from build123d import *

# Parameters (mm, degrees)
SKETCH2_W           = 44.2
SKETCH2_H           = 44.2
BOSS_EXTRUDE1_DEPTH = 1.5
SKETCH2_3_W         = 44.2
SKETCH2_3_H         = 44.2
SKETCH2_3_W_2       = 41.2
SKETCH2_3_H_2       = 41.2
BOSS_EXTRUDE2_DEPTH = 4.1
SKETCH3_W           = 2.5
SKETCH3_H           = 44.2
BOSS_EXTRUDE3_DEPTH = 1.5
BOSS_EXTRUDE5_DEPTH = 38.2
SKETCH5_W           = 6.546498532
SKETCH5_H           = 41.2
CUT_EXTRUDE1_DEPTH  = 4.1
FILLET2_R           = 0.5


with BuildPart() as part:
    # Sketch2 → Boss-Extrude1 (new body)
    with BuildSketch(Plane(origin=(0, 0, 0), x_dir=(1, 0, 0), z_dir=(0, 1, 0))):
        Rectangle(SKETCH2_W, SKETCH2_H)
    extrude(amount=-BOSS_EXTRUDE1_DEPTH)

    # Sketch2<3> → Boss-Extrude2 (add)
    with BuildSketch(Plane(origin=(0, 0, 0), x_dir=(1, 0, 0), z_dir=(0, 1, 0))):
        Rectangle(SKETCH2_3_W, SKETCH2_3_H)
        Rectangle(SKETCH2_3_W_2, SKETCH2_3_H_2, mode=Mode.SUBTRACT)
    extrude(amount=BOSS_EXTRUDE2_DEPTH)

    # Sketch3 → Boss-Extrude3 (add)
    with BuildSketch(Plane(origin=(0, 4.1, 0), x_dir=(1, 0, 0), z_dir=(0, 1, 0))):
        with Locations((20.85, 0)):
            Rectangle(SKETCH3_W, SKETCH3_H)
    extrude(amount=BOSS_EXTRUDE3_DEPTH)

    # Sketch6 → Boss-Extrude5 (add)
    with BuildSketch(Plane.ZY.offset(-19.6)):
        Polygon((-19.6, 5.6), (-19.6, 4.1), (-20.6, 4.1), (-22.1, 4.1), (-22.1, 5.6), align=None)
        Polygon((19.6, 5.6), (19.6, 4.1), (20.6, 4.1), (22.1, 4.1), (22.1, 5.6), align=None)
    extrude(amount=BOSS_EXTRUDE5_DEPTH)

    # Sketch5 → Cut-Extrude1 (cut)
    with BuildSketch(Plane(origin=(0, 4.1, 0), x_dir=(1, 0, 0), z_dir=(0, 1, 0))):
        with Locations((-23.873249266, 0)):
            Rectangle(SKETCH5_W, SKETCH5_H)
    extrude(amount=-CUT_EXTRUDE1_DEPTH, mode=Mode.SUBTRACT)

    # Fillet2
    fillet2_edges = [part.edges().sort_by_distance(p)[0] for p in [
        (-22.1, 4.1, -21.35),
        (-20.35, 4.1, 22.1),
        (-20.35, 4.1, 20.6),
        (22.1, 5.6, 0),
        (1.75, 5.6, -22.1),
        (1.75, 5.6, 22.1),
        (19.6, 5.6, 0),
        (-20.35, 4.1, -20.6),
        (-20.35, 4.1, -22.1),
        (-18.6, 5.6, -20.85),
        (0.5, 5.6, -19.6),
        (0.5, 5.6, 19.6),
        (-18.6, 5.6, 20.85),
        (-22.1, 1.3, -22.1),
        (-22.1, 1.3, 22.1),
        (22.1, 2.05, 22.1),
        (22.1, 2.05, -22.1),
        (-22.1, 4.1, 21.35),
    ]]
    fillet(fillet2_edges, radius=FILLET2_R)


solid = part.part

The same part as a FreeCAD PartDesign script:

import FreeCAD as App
import Part
import Sketcher
from FreeCAD import Vector


def edges_at(feature, points):
    """Names of the edges that pass closest to the given points."""
    edges = feature.Shape.Edges
    near = lambda p: min(range(len(edges)), key=lambda i: edges[i].distToShape(Part.Vertex(*p))[0])
    return sorted({f"Edge{near(p) + 1}" for p in points})

doc = App.newDocument("Part")
params = doc.addObject("Spreadsheet::Sheet", "Params")
for row, (alias, value) in enumerate([
    ("sketch1_width", "44.2 mm"),
    ("pad1_length", "1.5 mm"),
    ("sketch2_width", "44.2 mm"),
    ("sketch2_width2", "41.2 mm"),
    ("pad2_length", "4.1 mm"),
    ("sketch3_width", "2.5 mm"),
    ("sketch3_height", "44.2 mm"),
    ("pad3_length", "1.5 mm"),
    ("sketch4_width", "1.5 mm"),
    ("sketch4_height", "2.5 mm"),
    ("pad4_length", "38.2 mm"),
    ("sketch5_height", "41.2 mm"),
    ("pocket1_length", "4.1 mm"),
    ("fillet_radius", "0.5 mm"),
], start=1):
    params.set(f"A{row}", alias)
    params.set(f"B{row}", "=" + value)
    params.setAlias(f"B{row}", alias)

body = doc.addObject("PartDesign::Body", "Body")

# Sketch on XZ plane
sketch1 = body.newObject("Sketcher::SketchObject", "Sketch")
sketch1.AttachmentSupport = (doc.getObject("XZ_Plane"), [""])
sketch1.MapMode = "FlatFace"
sketch1.addGeometry([
    Part.LineSegment(Vector(-22, -22, 0), Vector(-22, 22, 0)),
    Part.LineSegment(Vector(-22, 22, 0), Vector(22, 22, 0)),
    Part.LineSegment(Vector(22, 22, 0), Vector(22, -22, 0)),
    Part.LineSegment(Vector(22, -22, 0), Vector(-22, -22, 0)),
], False)
sketch1.addConstraint([
    Sketcher.Constraint("Coincident", 0, 2, 1, 1),
    Sketcher.Constraint("Coincident", 1, 2, 2, 1),
    Sketcher.Constraint("Coincident", 2, 2, 3, 1),
    Sketcher.Constraint("Coincident", 3, 2, 0, 1),
    Sketcher.Constraint("Vertical", 0),
    Sketcher.Constraint("Horizontal", 1),
    Sketcher.Constraint("Vertical", 2),
    Sketcher.Constraint("Horizontal", 3),
    Sketcher.Constraint("Symmetric", 0, 2, 2, 2, -1, 1),
    Sketcher.Constraint("Equal", 3, 0),
    Sketcher.Constraint("DistanceX", 1, 1, 1, 2, 44.2),
])
sketch1.setExpression("Constraints[10]", "Params.sketch1_width")
pad1 = body.newObject("PartDesign::Pad", "Pad")
pad1.Profile = sketch1
pad1.setExpression("Length", "Params.pad1_length")

# Sketch on XZ plane
sketch2 = body.newObject("Sketcher::SketchObject", "Sketch001")
sketch2.AttachmentSupport = (doc.getObject("XZ_Plane"), [""])
sketch2.MapMode = "FlatFace"
sketch2.addGeometry([
    Part.LineSegment(Vector(-22, -22, 0), Vector(-22, 22, 0)),  # 0
    Part.LineSegment(Vector(-22, 22, 0), Vector(22, 22, 0)),  # 1
    Part.LineSegment(Vector(22, 22, 0), Vector(22, -22, 0)),  # 2
    Part.LineSegment(Vector(22, -22, 0), Vector(-22, -22, 0)),  # 3
    Part.LineSegment(Vector(21, 21, 0), Vector(-21, 21, 0)),  # 4
    Part.LineSegment(Vector(-21, 21, 0), Vector(-21, -21, 0)),  # 5
    Part.LineSegment(Vector(-21, -21, 0), Vector(21, -21, 0)),  # 6
    Part.LineSegment(Vector(21, -21, 0), Vector(21, 21, 0)),  # 7
], False)
sketch2.addConstraint([
    Sketcher.Constraint("Coincident", 0, 2, 1, 1),
    Sketcher.Constraint("Coincident", 1, 2, 2, 1),
    Sketcher.Constraint("Coincident", 2, 2, 3, 1),
    Sketcher.Constraint("Coincident", 3, 2, 0, 1),
    Sketcher.Constraint("Coincident", 4, 2, 5, 1),
    Sketcher.Constraint("Coincident", 5, 2, 6, 1),
    Sketcher.Constraint("Coincident", 6, 2, 7, 1),
    Sketcher.Constraint("Coincident", 7, 2, 4, 1),
    Sketcher.Constraint("Vertical", 0),
    Sketcher.Constraint("Horizontal", 1),
    Sketcher.Constraint("Vertical", 2),
    Sketcher.Constraint("Horizontal", 3),
    Sketcher.Constraint("Horizontal", 4),
    Sketcher.Constraint("Vertical", 5),
    Sketcher.Constraint("Horizontal", 6),
    Sketcher.Constraint("Vertical", 7),
    Sketcher.Constraint("Symmetric", 0, 2, 2, 2, -1, 1),
    Sketcher.Constraint("Symmetric", 4, 2, 6, 2, -1, 1),
    Sketcher.Constraint("Equal", 3, 0),
    Sketcher.Constraint("Equal", 6, 5),
    Sketcher.Constraint("DistanceX", 1, 1, 1, 2, 44.2),
    Sketcher.Constraint("DistanceX", 4, 2, 4, 1, 41.2),
])
sketch2.setExpression("Constraints[20]", "Params.sketch2_width")
sketch2.setExpression("Constraints[21]", "Params.sketch2_width2")
pad2 = body.newObject("PartDesign::Pad", "Pad001")
pad2.Profile = sketch2
pad2.setExpression("Length", "Params.pad2_length")
pad2.Reversed = True

# Sketch on XZ plane
sketch3 = body.newObject("Sketcher::SketchObject", "Sketch002")
sketch3.AttachmentSupport = (doc.getObject("XZ_Plane"), [""])
sketch3.MapMode = "FlatFace"
sketch3.AttachmentOffset = App.Placement(Vector(0, 0, -4.1), App.Rotation())
sketch3.addGeometry([
    Part.LineSegment(Vector(19.6, -22.1, 0), Vector(19.6, 22.1, 0)),
    Part.LineSegment(Vector(19.6, 22.1, 0), Vector(22.1, 22.1, 0)),
    Part.LineSegment(Vector(22.1, 22.1, 0), Vector(22.1, -22.1, 0)),
    Part.LineSegment(Vector(22.1, -22.1, 0), Vector(19.6, -22.1, 0)),
], False)
sketch3.addConstraint([
    Sketcher.Constraint("Coincident", 0, 2, 1, 1),
    Sketcher.Constraint("Coincident", 1, 2, 2, 1),
    Sketcher.Constraint("Coincident", 2, 2, 3, 1),
    Sketcher.Constraint("Coincident", 3, 2, 0, 1),
    Sketcher.Constraint("Vertical", 0),
    Sketcher.Constraint("Horizontal", 1),
    Sketcher.Constraint("Vertical", 2),
    Sketcher.Constraint("Horizontal", 3),
    Sketcher.Constraint("DistanceX", 1, 1, 1, 2, 2.5),
    Sketcher.Constraint("DistanceY", 0, 1, 0, 2, 44.2),
    Sketcher.Constraint("DistanceX", -1, 1, 0, 2, 19.6),
    Sketcher.Constraint("DistanceY", -1, 1, 0, 2, 22.1),
])
sketch3.setExpression("Constraints[8]", "Params.sketch3_width")
sketch3.setExpression("Constraints[9]", "Params.sketch3_height")
pad3 = body.newObject("PartDesign::Pad", "Pad002")
pad3.Profile = sketch3
pad3.setExpression("Length", "Params.pad3_length")
pad3.Reversed = True

# Sketch on YZ plane
sketch4 = body.newObject("Sketcher::SketchObject", "Sketch003")
sketch4.AttachmentSupport = (doc.getObject("YZ_Plane"), [""])
sketch4.MapMode = "FlatFace"
sketch4.AttachmentOffset = App.Placement(Vector(0, 0, 19.6), App.Rotation())
sketch4.addGeometry([
    Part.LineSegment(Vector(4.1, -19.6, 0), Vector(5.6, -19.6, 0)),  # 0
    Part.LineSegment(Vector(5.6, -19.6, 0), Vector(5.6, -22.1, 0)),  # 1
    Part.LineSegment(Vector(5.6, -22.1, 0), Vector(4.1, -22.1, 0)),  # 2
    Part.LineSegment(Vector(4.1, -22.1, 0), Vector(4.1, -19.6, 0)),  # 3
    Part.LineSegment(Vector(5.6, 19.6, 0), Vector(4.1, 19.6, 0)),  # 4
    Part.LineSegment(Vector(4.1, 19.6, 0), Vector(4.1, 22.1, 0)),  # 5
    Part.LineSegment(Vector(4.1, 22.1, 0), Vector(5.6, 22.1, 0)),  # 6
    Part.LineSegment(Vector(5.6, 22.1, 0), Vector(5.6, 19.6, 0)),  # 7
], False)
sketch4.addConstraint([
    Sketcher.Constraint("Coincident", 0, 2, 1, 1),
    Sketcher.Constraint("Coincident", 1, 2, 2, 1),
    Sketcher.Constraint("Coincident", 2, 2, 3, 1),
    Sketcher.Constraint("Coincident", 3, 2, 0, 1),
    Sketcher.Constraint("Coincident", 4, 2, 5, 1),
    Sketcher.Constraint("Coincident", 5, 2, 6, 1),
    Sketcher.Constraint("Coincident", 6, 2, 7, 1),
    Sketcher.Constraint("Coincident", 7, 2, 4, 1),
    Sketcher.Constraint("Horizontal", 0),
    Sketcher.Constraint("Vertical", 1),
    Sketcher.Constraint("Horizontal", 2),
    Sketcher.Constraint("Vertical", 3),
    Sketcher.Constraint("Horizontal", 4),
    Sketcher.Constraint("Vertical", 5),
    Sketcher.Constraint("Horizontal", 6),
    Sketcher.Constraint("Vertical", 7),
    Sketcher.Constraint("Symmetric", 3, 2, 4, 2, -1),
    Sketcher.Constraint("Symmetric", 1, 2, 6, 2, -1),
    Sketcher.Constraint("DistanceX", 0, 1, 0, 2, 1.5),
    Sketcher.Constraint("DistanceY", 1, 2, 1, 1, 2.5),
    Sketcher.Constraint("DistanceX", -1, 1, 0, 2, 5.6),
    Sketcher.Constraint("DistanceY", 0, 2, -1, 1, 19.6),
])
sketch4.setExpression("Constraints[18]", "Params.sketch4_width")
sketch4.setExpression("Constraints[19]", "Params.sketch4_height")
pad4 = body.newObject("PartDesign::Pad", "Pad003")
pad4.Profile = sketch4
pad4.setExpression("Length", "Params.pad4_length")
pad4.Reversed = True

# Sketch on XZ plane
sketch5 = body.newObject("Sketcher::SketchObject", "Sketch004")
sketch5.AttachmentSupport = (doc.getObject("XZ_Plane"), [""])
sketch5.MapMode = "FlatFace"
sketch5.AttachmentOffset = App.Placement(Vector(0, 0, -4.1), App.Rotation())
sketch5.addGeometry([
    Part.LineSegment(Vector(-27, -21, 0), Vector(-27, 21, 0)),
    Part.LineSegment(Vector(-27, 21, 0), Vector(-21, 21, 0)),
    Part.LineSegment(Vector(-21, 21, 0), Vector(-21, -21, 0)),
    Part.LineSegment(Vector(-21, -21, 0), Vector(-27, -21, 0)),
], False)
sketch5.addConstraint([
    Sketcher.Constraint("Coincident", 0, 2, 1, 1),
    Sketcher.Constraint("Coincident", 1, 2, 2, 1),
    Sketcher.Constraint("Coincident", 2, 2, 3, 1),
    Sketcher.Constraint("Coincident", 3, 2, 0, 1),
    Sketcher.Constraint("Vertical", 0),
    Sketcher.Constraint("Horizontal", 1),
    Sketcher.Constraint("Vertical", 2),
    Sketcher.Constraint("Horizontal", 3),
    Sketcher.Constraint("DistanceY", 0, 1, 0, 2, 41.2),
    Sketcher.Constraint("DistanceY", -1, 1, 0, 2, 20.6),
    Sketcher.Constraint("DistanceX", 1, 2, -1, 1, 20.6),
    Sketcher.Constraint("DistanceX", 1, 1, 1, 2, 6.546499),
])
sketch5.setExpression("Constraints[8]", "Params.sketch5_height")
pocket1 = body.newObject("PartDesign::Pocket", "Pocket")
pocket1.Profile = sketch5
pocket1.setExpression("Length", "Params.pocket1_length")
pocket1.Reversed = True
doc.recompute()

fillet = body.newObject("PartDesign::Fillet", "Fillet")
fillet.Base = (pocket1, edges_at(pocket1, [
    (-22.1, 4.1, -21.35),
    (-20.35, 4.1, 22.1),
    (-20.35, 4.1, 20.6),
    (22.1, 5.6, 0),
    (1.75, 5.6, -22.1),
    (1.75, 5.6, 22.1),
    (19.6, 5.6, 0),
    (-20.35, 4.1, -20.6),
    (-20.35, 4.1, -22.1),
    (-18.6, 5.6, -20.85),
    (0.5, 5.6, -19.6),
    (0.5, 5.6, 19.6),
    (-18.6, 5.6, 20.85),
    (-22.1, 1.3, -22.1),
    (-22.1, 1.3, 22.1),
    (22.1, 2.05, 22.1),
    (22.1, 2.05, -22.1),
    (-22.1, 4.1, 21.35),
]))
fillet.setExpression("Radius", "Params.fillet_radius")

doc.recompute()
